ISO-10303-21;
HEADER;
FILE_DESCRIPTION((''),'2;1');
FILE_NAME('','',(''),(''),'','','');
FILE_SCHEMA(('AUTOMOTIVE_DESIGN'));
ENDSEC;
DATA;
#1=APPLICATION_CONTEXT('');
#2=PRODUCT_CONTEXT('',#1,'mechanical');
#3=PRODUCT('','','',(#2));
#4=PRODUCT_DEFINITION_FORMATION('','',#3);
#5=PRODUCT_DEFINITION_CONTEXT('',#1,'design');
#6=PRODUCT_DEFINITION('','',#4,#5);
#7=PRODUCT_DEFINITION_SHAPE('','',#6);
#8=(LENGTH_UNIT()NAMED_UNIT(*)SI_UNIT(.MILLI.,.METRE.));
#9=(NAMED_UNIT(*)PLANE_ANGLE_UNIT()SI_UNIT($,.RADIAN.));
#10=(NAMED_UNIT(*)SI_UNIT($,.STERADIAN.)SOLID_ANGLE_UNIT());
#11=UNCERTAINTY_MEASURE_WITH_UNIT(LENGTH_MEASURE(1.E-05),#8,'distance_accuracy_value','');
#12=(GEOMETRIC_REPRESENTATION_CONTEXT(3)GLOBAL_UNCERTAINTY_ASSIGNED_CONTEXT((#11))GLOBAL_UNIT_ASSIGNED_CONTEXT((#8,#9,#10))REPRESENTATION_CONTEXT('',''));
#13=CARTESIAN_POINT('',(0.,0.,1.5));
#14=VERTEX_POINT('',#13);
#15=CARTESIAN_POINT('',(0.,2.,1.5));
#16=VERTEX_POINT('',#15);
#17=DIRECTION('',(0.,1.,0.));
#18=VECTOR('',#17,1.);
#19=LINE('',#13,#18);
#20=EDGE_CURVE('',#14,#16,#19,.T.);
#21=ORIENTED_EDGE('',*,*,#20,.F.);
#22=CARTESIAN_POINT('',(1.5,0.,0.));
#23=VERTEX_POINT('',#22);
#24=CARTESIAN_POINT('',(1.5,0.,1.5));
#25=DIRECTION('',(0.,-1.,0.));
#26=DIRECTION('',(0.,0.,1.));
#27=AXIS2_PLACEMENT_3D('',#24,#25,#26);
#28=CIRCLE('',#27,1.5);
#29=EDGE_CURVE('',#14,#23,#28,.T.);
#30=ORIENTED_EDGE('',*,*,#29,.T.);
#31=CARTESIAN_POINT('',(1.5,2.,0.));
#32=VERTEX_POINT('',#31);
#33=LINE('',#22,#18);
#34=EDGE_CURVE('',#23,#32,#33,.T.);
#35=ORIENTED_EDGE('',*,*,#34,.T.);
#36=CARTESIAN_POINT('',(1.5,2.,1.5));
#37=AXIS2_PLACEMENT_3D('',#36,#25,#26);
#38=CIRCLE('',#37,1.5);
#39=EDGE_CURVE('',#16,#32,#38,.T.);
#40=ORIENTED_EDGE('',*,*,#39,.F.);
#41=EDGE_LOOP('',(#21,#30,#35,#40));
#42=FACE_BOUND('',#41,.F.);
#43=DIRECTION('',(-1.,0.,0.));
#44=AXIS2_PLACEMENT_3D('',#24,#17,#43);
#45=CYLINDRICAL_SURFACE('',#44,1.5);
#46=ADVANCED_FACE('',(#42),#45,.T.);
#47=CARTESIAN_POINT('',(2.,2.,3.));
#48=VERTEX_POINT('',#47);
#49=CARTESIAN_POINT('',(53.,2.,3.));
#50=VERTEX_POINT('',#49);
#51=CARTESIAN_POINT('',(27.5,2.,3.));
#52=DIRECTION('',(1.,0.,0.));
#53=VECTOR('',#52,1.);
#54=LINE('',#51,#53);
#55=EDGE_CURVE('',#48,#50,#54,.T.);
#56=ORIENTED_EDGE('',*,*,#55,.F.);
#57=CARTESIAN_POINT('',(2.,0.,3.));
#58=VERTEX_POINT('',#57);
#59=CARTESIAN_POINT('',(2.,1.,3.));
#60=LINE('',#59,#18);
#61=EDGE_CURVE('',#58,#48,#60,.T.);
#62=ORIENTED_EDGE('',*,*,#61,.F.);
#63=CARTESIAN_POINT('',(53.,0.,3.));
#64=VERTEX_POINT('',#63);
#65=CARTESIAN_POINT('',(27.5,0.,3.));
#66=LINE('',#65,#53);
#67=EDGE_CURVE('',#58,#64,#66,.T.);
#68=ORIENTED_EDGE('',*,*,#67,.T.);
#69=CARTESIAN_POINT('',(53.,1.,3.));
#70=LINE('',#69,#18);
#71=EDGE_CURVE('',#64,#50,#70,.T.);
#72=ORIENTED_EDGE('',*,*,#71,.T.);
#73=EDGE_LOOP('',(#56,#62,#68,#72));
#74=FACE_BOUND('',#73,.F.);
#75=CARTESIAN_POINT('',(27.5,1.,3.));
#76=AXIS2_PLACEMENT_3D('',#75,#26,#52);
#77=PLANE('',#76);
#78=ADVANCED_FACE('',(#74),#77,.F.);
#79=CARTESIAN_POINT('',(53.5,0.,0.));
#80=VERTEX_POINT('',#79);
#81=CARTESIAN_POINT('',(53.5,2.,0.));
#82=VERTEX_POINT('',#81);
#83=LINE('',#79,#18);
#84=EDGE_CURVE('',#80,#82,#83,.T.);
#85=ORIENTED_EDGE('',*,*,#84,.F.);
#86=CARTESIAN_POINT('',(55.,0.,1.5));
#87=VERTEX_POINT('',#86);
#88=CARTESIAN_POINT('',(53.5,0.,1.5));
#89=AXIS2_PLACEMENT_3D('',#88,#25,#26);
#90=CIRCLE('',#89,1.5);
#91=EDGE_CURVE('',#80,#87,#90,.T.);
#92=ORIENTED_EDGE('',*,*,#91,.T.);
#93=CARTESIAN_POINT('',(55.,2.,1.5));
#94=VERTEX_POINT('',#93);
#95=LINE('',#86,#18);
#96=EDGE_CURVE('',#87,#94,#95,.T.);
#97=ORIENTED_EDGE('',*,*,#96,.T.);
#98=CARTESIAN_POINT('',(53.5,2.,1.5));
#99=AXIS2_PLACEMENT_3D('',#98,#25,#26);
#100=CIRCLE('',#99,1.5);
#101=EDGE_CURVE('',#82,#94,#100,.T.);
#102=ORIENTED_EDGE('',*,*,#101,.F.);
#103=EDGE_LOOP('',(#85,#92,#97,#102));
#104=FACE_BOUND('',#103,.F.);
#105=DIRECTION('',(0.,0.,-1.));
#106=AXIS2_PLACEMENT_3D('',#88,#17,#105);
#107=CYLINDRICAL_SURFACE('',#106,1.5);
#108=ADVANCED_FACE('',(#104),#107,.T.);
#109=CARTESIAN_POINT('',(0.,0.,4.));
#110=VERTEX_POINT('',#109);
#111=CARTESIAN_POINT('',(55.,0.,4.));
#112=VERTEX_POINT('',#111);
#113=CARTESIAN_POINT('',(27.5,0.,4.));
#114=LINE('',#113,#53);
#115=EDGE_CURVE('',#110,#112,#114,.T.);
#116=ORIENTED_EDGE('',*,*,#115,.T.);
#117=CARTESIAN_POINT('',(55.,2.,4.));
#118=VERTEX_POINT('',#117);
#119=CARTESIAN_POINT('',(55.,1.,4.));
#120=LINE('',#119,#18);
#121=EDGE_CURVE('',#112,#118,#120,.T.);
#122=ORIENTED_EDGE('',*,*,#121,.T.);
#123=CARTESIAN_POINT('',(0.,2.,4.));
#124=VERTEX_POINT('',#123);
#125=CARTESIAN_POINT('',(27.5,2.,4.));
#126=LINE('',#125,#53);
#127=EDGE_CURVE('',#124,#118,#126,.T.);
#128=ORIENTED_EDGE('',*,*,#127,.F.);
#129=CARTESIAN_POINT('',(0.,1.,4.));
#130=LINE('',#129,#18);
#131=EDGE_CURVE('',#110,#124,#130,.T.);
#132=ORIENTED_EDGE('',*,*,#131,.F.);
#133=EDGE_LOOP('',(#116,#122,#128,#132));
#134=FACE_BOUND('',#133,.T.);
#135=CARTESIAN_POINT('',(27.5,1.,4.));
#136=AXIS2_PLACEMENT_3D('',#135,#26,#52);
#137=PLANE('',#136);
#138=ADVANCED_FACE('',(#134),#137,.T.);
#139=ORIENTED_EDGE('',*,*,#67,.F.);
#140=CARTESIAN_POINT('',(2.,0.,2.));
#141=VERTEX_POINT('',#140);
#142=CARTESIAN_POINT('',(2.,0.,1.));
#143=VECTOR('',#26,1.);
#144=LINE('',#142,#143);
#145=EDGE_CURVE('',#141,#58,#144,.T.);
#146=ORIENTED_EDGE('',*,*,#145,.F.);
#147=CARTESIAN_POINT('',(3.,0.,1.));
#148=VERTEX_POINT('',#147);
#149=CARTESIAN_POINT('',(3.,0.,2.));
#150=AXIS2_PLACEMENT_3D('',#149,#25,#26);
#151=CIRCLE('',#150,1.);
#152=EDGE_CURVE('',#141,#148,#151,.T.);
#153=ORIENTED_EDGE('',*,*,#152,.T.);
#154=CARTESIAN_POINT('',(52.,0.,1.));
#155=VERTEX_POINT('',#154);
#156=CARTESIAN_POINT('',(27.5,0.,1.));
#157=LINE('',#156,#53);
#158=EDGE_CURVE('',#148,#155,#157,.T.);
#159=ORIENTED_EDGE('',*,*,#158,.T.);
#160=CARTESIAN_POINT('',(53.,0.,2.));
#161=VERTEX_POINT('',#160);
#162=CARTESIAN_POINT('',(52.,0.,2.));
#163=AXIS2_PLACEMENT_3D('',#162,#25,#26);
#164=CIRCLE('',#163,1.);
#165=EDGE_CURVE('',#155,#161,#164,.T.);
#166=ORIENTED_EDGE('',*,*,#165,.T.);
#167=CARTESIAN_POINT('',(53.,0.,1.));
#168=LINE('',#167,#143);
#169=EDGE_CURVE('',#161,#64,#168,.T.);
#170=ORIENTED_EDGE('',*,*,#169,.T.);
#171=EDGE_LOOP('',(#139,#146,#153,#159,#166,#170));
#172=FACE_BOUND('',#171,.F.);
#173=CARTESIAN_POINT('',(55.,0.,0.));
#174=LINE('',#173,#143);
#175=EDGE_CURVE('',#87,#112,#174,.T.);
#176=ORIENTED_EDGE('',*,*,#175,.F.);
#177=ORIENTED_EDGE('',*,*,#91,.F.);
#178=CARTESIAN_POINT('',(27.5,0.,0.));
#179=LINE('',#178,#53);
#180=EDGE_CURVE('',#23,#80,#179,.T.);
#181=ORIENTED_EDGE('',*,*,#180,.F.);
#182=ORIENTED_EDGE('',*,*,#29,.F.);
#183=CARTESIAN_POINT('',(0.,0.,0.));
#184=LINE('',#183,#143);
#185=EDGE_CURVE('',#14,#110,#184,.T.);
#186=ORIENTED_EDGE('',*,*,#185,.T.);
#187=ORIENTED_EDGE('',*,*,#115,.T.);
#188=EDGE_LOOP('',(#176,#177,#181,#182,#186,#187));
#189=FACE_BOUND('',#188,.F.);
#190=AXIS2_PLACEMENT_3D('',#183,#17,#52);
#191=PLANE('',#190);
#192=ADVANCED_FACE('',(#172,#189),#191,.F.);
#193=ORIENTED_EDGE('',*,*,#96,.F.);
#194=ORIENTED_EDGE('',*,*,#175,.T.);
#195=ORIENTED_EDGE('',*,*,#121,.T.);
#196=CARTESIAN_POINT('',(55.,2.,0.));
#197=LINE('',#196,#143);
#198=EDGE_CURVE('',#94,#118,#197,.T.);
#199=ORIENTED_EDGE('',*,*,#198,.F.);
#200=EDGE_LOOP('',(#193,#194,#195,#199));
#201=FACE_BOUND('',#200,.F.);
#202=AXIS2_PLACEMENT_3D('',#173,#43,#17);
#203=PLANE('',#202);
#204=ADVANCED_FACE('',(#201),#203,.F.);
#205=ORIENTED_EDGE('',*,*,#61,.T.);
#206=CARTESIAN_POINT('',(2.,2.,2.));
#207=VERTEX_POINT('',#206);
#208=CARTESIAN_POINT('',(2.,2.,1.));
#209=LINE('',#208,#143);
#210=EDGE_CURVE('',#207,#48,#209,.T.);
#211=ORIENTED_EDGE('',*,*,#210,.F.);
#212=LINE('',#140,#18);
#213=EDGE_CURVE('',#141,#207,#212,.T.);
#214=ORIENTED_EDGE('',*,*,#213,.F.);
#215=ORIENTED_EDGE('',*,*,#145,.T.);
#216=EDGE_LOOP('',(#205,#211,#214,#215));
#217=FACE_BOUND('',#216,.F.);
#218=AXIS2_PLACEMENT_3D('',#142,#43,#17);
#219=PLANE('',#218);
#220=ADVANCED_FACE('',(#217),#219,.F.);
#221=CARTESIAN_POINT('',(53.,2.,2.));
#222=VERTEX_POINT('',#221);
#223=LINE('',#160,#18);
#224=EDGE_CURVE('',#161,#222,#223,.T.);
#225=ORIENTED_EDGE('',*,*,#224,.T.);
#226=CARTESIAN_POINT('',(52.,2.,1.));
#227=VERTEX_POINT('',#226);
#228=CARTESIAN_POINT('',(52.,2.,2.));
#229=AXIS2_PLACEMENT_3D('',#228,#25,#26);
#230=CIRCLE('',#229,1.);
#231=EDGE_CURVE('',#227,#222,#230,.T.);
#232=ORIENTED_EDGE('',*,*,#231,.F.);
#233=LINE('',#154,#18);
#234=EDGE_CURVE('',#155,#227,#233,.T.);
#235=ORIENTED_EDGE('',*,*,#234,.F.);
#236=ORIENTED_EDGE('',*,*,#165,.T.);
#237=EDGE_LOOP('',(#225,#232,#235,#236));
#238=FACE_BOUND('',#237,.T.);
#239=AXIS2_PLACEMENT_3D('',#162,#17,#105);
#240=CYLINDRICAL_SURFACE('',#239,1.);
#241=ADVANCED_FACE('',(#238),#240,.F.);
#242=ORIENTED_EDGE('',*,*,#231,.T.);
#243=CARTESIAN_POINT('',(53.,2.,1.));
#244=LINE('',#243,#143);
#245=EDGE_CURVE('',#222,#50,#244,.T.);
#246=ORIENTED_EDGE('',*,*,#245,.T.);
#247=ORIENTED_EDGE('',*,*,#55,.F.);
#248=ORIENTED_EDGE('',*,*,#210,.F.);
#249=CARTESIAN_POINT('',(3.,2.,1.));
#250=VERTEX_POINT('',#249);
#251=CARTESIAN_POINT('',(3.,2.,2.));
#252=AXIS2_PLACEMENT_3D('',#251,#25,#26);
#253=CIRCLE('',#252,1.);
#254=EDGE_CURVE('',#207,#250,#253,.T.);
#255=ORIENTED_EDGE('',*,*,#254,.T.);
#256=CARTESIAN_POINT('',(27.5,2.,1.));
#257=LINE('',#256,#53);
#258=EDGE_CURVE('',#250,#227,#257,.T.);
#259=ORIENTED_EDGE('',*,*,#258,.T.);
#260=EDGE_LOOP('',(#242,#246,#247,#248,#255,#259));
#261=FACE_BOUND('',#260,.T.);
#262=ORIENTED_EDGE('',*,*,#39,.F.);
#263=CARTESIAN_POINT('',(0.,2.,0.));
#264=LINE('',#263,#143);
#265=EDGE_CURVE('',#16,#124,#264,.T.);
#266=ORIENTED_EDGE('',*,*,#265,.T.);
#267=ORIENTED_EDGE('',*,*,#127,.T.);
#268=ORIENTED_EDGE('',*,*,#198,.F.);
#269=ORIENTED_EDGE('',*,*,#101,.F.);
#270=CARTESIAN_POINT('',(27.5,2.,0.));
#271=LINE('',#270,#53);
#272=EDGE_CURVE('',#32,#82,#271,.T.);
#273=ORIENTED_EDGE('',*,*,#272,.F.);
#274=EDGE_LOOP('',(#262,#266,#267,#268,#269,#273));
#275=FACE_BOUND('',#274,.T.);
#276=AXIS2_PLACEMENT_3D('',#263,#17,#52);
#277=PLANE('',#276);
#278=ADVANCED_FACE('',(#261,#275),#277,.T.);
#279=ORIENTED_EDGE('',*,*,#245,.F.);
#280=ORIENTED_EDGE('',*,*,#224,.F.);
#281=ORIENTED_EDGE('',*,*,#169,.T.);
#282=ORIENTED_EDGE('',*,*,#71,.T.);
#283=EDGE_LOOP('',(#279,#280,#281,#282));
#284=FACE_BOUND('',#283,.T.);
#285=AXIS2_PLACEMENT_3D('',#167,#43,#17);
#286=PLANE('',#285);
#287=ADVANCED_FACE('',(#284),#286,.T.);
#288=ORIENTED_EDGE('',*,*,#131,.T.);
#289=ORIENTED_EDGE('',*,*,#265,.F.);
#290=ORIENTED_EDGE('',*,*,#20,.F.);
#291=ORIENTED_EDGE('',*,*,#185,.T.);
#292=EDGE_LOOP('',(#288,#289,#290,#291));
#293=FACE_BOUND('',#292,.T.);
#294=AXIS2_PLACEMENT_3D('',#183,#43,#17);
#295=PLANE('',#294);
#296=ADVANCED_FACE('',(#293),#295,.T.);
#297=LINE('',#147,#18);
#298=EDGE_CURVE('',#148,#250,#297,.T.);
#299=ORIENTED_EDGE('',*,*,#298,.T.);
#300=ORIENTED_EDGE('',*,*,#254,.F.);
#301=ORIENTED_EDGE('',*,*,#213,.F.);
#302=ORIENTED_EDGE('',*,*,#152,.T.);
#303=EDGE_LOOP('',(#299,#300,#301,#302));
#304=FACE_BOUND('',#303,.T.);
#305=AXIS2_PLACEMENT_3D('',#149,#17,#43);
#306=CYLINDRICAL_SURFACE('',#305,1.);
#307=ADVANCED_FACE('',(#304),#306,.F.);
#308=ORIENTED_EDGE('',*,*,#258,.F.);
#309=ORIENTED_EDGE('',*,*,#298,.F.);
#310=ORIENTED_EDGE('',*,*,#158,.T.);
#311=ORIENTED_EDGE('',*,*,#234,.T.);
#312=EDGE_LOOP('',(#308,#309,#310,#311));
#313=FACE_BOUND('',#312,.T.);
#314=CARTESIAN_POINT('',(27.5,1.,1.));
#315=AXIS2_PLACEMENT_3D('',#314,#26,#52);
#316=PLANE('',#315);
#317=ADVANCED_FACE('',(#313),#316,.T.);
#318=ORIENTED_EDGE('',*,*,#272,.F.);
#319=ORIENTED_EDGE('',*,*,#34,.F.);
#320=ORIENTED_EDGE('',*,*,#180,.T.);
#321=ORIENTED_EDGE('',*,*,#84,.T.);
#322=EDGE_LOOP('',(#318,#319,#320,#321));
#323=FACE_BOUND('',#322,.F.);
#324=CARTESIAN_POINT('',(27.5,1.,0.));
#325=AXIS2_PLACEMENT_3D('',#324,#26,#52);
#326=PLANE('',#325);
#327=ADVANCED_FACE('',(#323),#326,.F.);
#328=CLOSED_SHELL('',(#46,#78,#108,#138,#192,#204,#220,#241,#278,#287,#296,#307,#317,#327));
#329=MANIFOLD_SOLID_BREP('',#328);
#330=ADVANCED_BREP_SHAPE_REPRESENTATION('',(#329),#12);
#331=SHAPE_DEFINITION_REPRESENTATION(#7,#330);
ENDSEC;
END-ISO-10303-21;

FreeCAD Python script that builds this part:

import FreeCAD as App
import Part
import Sketcher

V = App.Vector
Q = App.Units.Quantity


def edges_at(feature, points):
    """Names of the edges that pass closest to the given points."""
    edges = feature.Shape.Edges
    near = lambda p: min(range(len(edges)), key=lambda i: edges[i].distToShape(Part.Vertex(*p))[0])
    return sorted({f"Edge{near(p) + 1}" for p in points})

doc = App.newDocument("Part")
body = doc.addObject("PartDesign::Body", "Body")

sketch1 = doc.addObject("Sketcher::SketchObject", "Sketch")
body.addObject(sketch1)
sketch1.AttachmentSupport = (doc.XY_Plane, [""])
sketch1.MapMode = "FlatFace"
sketch1.AttachmentOffset = App.Placement(V(0, 0, 1), App.Rotation())
sketch1.addGeometry([
    Part.LineSegment(V(2, 2, 0), V(2, 0, 0)),
    Part.LineSegment(V(2, 0, 0), V(53, 0, 0)),
    Part.LineSegment(V(53, 0, 0), V(53, 2, 0)),
    Part.LineSegment(V(53, 2, 0), V(2, 2, 0)),
], False)
sketch1.addConstraint([
    Sketcher.Constraint("Coincident", 0, 2, 1, 1),
    Sketcher.Constraint("Coincident", 1, 2, 2, 1),
    Sketcher.Constraint("Coincident", 2, 2, 3, 1),
    Sketcher.Constraint("Coincident", 3, 2, 0, 1),
    Sketcher.Constraint("Vertical", 0),
    Sketcher.Constraint("Horizontal", 1),
    Sketcher.Constraint("Vertical", 2),
    Sketcher.Constraint("Horizontal", 3),
    Sketcher.Constraint("PointOnObject", 0, 2, -1),
    Sketcher.Constraint("DistanceX", 1, 1, 1, 2, Q("51 mm")),
    Sketcher.Constraint("DistanceY", 0, 2, 0, 1, Q("2 mm")),
    Sketcher.Constraint("DistanceX", -1, 1, 0, 2, Q("2 mm")),
])
pad1 = doc.addObject("PartDesign::Pad", "Pad")
body.addObject(pad1)
pad1.Profile = sketch1
pad1.Length = 2
body2 = doc.addObject("PartDesign::Body", "Body001")

sketch2 = doc.addObject("Sketcher::SketchObject", "Sketch001")
body2.addObject(sketch2)
sketch2.AttachmentSupport = (doc.getObject("XY_Plane001"), [""])
sketch2.MapMode = "FlatFace"
sketch2.addGeometry([
    Part.LineSegment(V(0, 2, 0), V(0, 0, 0)),
    Part.LineSegment(V(0, 0, 0), V(55, 0, 0)),
    Part.LineSegment(V(55, 0, 0), V(55, 2, 0)),
    Part.LineSegment(V(55, 2, 0), V(0, 2, 0)),
], False)
sketch2.addConstraint([
    Sketcher.Constraint("Coincident", 0, 2, 1, 1),
    Sketcher.Constraint("Coincident", 1, 2, 2, 1),
    Sketcher.Constraint("Coincident", 2, 2, 3, 1),
    Sketcher.Constraint("Coincident", 3, 2, 0, 1),
    Sketcher.Constraint("Vertical", 0),
    Sketcher.Constraint("Horizontal", 1),
    Sketcher.Constraint("Vertical", 2),
    Sketcher.Constraint("Horizontal", 3),
    Sketcher.Constraint("Coincident", 0, 2, -1, 1),
    Sketcher.Constraint("DistanceX", 1, 1, 1, 2, Q("55 mm")),
    Sketcher.Constraint("DistanceY", 0, 2, 0, 1, Q("2 mm")),
])
pad2 = doc.addObject("PartDesign::Pad", "Pad001")
body2.addObject(pad2)
pad2.Profile = sketch2
pad2.Length = 4
doc.recompute()

boolean = doc.addObject("PartDesign::Boolean", "Boolean")
body2.addObject(boolean)
boolean.Type = "Cut"
boolean.addObjects([body])
doc.recompute()

fillet = doc.addObject("PartDesign::Fillet", "Fillet")
body2.addObject(fillet)
fillet.Base = (boolean, edges_at(boolean, [(0, 1, 0), (55, 1, 0)]))
fillet.Radius = 1.5
doc.recompute()

fillet2 = doc.addObject("PartDesign::Fillet", "Fillet001")
body2.addObject(fillet2)
fillet2.Base = (fillet, edges_at(fillet, [(2, 1, 1)]))
fillet2.Radius = 1
doc.recompute()

fillet3 = doc.addObject("PartDesign::Fillet", "Fillet002")
body2.addObject(fillet3)
fillet3.Base = (fillet2, edges_at(fillet2, [(53, 1, 1)]))
fillet3.Radius = 1

doc.recompute()
